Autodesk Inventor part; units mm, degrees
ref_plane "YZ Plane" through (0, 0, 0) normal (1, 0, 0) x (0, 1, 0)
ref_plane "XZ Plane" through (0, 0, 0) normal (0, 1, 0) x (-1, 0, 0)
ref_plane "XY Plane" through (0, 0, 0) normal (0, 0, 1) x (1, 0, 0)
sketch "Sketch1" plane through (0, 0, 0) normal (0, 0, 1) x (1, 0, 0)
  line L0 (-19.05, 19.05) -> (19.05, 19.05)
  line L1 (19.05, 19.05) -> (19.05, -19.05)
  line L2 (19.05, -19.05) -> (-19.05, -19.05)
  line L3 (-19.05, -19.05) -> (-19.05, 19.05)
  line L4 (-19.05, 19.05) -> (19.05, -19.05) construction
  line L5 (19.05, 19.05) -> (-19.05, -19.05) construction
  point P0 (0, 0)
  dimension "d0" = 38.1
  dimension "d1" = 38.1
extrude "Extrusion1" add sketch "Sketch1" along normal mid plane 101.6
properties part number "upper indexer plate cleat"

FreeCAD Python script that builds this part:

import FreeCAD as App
import Part
import Sketcher

V = App.Vector
Q = App.Units.Quantity

doc = App.newDocument("Part")
body = doc.addObject("PartDesign::Body", "Body")

# Sketch on XY plane
sketch1 = body.newObject("Sketcher::SketchObject", "Sketch")
sketch1.AttachmentSupport = (doc.getObject("XY_Plane"), [""])
sketch1.MapMode = "FlatFace"
sketch1.addGeometry(Part.LineSegment(V(19.05, 19.05, 0), V(-19.05, 19.05, 0)), False)
sketch1.addGeometry(Part.LineSegment(V(-19.05, 19.05, 0), V(-19.05, -19.05, 0)), False)
sketch1.addGeometry(Part.LineSegment(V(-19.05, -19.05, 0), V(19.05, -19.05, 0)), False)
sketch1.addGeometry(Part.LineSegment(V(19.05, -19.05, 0), V(19.05, 19.05, 0)), False)
sketch1.addConstraint(Sketcher.Constraint("Coincident", 0, 2, 1, 1))
sketch1.addConstraint(Sketcher.Constraint("Coincident", 1, 2, 2, 1))
sketch1.addConstraint(Sketcher.Constraint("Coincident", 2, 2, 3, 1))
sketch1.addConstraint(Sketcher.Constraint("Coincident", 3, 2, 0, 1))
sketch1.addConstraint(Sketcher.Constraint("Horizontal", 0))
sketch1.addConstraint(Sketcher.Constraint("Vertical", 1))
sketch1.addConstraint(Sketcher.Constraint("Horizontal", 2))
sketch1.addConstraint(Sketcher.Constraint("Vertical", 3))
sketch1.addConstraint(Sketcher.Constraint("Symmetric", 0, 2, 2, 2, -1, 1))
sketch1.addConstraint(Sketcher.Constraint("Equal", 2, 1))
sketch1.addConstraint(Sketcher.Constraint("DistanceX", 0, 2, 0, 1, Q("1.5 in")))
pad1 = body.newObject("PartDesign::Pad", "Pad")
pad1.Profile = sketch1
pad1.Length = Q("4 in")
pad1.Midplane = True

doc.recompute()
